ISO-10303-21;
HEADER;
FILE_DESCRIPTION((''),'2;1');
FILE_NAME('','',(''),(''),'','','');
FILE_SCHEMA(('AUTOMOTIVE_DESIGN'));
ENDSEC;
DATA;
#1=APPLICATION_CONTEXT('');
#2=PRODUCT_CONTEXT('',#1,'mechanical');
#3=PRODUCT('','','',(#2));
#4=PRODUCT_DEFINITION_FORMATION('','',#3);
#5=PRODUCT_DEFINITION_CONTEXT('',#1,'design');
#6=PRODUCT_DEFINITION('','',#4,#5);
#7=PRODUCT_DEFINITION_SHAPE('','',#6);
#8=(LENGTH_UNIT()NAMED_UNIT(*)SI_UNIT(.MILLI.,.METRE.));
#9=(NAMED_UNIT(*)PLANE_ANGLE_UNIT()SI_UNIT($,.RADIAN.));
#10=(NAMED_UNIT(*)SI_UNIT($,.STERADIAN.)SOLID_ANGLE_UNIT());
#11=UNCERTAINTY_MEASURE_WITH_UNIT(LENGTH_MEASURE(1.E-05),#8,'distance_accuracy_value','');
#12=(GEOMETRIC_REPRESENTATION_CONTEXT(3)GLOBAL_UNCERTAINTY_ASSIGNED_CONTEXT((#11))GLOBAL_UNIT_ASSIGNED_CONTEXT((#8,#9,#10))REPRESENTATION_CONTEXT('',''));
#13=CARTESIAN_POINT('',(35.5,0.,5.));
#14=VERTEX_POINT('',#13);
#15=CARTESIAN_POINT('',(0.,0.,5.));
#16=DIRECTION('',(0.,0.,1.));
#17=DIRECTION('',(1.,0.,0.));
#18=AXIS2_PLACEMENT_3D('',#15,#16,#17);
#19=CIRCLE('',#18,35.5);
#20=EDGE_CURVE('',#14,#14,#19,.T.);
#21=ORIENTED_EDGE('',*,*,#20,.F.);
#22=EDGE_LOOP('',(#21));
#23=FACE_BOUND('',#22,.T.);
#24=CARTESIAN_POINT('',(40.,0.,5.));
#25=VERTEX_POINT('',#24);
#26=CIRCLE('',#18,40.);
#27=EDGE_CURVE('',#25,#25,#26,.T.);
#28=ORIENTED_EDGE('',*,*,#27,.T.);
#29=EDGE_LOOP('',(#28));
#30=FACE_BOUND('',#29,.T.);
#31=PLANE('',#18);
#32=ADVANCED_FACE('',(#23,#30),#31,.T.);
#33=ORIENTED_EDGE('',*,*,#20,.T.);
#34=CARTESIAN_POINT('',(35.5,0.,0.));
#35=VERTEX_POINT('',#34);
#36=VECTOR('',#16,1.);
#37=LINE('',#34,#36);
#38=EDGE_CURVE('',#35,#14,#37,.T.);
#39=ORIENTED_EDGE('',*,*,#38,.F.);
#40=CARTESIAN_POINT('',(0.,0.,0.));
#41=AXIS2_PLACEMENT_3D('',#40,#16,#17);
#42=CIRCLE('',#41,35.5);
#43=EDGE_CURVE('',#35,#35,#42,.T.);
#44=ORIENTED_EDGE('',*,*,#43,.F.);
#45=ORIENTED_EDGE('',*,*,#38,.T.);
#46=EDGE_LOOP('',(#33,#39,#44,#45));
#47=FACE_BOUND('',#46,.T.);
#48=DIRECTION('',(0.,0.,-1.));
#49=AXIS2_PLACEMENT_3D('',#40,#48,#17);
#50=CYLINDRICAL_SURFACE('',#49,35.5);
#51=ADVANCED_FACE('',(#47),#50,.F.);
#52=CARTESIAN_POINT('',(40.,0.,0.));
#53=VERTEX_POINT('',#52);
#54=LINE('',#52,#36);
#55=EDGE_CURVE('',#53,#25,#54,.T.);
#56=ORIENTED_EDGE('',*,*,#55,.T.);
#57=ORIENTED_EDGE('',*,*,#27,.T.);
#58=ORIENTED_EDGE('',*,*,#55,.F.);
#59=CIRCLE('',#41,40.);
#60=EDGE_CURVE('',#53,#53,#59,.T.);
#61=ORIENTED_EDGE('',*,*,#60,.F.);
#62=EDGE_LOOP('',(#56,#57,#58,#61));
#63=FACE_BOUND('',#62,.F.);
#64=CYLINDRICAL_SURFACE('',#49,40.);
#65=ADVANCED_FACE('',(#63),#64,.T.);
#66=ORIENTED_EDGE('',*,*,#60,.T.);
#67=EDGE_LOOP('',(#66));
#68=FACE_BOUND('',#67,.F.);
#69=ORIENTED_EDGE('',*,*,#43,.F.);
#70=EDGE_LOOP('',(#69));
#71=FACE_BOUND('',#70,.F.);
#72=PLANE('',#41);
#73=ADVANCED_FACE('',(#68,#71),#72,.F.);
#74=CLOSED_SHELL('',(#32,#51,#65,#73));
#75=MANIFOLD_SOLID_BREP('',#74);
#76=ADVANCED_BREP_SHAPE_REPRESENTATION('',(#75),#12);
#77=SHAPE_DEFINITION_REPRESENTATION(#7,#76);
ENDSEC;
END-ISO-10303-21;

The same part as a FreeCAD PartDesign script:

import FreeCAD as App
import Part
import Sketcher

V = App.Vector
Q = App.Units.Quantity

doc = App.newDocument("Part")
body = doc.addObject("PartDesign::Body", "Body")

# Sketch on XY plane
sketch1 = body.newObject("Sketcher::SketchObject", "Sketch")
sketch1.AttachmentSupport = (doc.getObject("XY_Plane"), [""])
sketch1.MapMode = "FlatFace"
sketch1.addGeometry(Part.Circle(V(0, 0, 0), V(0, 0, 1), 40), False)
sketch1.addGeometry(Part.Circle(V(0, 0, 0), V(0, 0, 1), 36), False)
sketch1.addConstraint(Sketcher.Constraint("Coincident", 0, 3, -1, 1))
sketch1.addConstraint(Sketcher.Constraint("Coincident", 1, 3, -1, 1))
sketch1.addConstraint(Sketcher.Constraint("Diameter", 0, Q("80 mm")))
sketch1.addConstraint(Sketcher.Constraint("Diameter", 1, Q("71 mm")))
pad1 = body.newObject("PartDesign::Pad", "Pad")
pad1.Profile = sketch1
pad1.Length = 5

doc.recompute()
